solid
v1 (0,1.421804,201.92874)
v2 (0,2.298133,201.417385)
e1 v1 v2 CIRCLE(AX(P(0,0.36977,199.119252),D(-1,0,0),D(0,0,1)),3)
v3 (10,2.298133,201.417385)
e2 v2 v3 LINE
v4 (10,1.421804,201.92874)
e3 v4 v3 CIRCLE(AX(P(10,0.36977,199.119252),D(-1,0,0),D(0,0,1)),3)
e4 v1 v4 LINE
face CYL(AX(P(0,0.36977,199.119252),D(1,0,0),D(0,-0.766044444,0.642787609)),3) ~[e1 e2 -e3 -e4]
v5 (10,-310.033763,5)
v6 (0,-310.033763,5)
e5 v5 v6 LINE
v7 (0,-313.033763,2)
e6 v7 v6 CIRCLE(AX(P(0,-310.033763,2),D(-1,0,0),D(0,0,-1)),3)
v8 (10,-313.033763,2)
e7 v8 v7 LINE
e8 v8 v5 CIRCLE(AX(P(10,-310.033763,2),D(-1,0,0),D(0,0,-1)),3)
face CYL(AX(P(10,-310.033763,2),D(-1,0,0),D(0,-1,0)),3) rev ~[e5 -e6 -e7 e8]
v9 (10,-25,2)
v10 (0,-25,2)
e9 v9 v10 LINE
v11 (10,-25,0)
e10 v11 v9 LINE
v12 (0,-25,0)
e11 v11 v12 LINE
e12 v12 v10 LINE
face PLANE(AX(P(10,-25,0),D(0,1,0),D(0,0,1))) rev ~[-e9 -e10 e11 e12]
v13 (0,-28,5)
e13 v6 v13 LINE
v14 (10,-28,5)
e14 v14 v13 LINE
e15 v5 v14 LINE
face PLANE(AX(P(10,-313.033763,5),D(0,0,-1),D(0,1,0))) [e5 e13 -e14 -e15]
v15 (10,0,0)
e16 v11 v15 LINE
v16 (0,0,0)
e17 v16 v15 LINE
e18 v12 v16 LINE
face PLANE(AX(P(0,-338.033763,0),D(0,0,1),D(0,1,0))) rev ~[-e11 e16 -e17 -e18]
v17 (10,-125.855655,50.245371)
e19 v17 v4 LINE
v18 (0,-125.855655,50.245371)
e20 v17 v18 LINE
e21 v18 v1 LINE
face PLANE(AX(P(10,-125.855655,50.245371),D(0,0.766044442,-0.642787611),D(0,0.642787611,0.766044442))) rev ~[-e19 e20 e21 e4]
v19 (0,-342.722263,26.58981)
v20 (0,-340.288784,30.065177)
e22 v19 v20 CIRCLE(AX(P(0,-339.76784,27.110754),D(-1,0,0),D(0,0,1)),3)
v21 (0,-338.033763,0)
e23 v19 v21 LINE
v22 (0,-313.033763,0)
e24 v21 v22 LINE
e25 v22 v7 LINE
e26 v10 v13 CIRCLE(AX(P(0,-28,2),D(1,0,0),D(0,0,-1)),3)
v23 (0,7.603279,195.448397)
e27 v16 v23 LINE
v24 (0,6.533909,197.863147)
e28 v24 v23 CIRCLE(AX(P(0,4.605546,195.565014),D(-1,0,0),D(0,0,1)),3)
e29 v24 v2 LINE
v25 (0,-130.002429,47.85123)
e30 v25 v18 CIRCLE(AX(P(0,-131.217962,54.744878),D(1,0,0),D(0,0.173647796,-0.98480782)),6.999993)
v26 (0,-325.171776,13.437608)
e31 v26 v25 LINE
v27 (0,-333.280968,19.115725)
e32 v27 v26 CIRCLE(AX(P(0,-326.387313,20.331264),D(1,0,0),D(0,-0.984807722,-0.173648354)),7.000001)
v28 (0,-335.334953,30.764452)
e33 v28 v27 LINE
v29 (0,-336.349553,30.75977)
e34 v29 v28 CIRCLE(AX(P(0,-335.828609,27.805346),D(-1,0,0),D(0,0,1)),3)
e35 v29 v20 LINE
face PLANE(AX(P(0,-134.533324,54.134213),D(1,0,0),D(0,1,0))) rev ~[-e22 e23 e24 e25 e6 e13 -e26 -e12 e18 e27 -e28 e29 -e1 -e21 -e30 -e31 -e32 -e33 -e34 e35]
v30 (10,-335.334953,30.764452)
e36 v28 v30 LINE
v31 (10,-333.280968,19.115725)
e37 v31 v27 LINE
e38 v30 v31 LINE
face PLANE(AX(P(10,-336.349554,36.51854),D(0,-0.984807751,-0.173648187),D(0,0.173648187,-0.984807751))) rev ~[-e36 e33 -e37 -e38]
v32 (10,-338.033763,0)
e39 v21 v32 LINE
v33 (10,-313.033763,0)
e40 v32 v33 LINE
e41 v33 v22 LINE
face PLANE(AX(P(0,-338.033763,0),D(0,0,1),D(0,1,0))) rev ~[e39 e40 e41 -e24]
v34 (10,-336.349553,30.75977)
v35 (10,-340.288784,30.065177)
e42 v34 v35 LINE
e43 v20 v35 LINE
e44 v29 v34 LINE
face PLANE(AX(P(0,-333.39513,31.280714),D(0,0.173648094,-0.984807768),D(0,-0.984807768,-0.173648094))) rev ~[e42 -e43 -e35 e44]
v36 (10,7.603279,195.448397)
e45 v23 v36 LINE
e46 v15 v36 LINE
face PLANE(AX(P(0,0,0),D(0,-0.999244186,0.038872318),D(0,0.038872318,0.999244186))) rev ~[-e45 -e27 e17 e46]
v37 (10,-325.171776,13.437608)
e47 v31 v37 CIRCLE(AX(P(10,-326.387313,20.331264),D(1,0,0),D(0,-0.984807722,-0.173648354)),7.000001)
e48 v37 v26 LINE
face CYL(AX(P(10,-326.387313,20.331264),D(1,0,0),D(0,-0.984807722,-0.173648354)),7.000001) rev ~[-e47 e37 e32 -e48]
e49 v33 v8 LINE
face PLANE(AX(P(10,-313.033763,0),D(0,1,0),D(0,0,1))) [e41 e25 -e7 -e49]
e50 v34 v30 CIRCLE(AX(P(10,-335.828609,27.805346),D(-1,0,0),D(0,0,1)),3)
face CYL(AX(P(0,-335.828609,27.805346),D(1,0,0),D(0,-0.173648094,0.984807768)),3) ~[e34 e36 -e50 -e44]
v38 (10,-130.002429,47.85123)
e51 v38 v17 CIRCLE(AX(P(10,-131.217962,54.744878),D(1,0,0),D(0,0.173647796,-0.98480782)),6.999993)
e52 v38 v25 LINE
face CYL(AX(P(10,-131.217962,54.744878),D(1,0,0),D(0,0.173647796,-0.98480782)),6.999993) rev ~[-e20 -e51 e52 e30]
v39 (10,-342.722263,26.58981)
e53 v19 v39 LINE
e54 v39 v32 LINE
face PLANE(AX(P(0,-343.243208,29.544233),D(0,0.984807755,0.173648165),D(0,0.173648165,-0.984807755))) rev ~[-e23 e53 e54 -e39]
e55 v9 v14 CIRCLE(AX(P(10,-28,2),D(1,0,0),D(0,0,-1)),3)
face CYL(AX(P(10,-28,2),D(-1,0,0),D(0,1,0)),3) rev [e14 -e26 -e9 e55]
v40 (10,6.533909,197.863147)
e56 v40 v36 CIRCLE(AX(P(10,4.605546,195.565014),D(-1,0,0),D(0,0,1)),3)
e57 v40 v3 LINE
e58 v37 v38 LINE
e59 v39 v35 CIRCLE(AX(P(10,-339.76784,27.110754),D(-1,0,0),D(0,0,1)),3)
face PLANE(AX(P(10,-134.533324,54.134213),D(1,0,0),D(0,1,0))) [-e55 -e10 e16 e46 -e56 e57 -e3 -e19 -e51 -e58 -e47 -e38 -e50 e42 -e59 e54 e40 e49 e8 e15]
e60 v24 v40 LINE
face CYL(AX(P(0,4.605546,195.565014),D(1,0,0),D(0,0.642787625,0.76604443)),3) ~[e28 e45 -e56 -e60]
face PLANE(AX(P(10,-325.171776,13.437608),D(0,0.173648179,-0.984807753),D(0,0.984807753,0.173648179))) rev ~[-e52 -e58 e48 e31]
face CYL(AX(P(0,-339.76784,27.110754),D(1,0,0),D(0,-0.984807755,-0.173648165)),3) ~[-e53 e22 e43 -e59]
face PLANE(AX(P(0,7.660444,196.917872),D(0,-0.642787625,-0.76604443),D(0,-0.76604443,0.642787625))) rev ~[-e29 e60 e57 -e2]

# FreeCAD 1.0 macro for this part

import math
import FreeCAD as App
import Part
import Sketcher
from FreeCAD import Vector
Q = App.Units.Quantity


def edges_at(feature, points):
    """Names of the edges that pass closest to the given points."""
    edges = feature.Shape.Edges
    near = lambda p: min(range(len(edges)), key=lambda i: edges[i].distToShape(Part.Vertex(*p))[0])
    return sorted({f"Edge{near(p) + 1}" for p in points})

doc = App.newDocument("Part")
body = doc.addObject("PartDesign::Body", "Body")

sketch1 = body.newObject("Sketcher::SketchObject", "Sketch")
sketch1.AttachmentSupport = (doc.getObject("YZ_Plane"), [""])
sketch1.MapMode = "FlatFace"
sketch1.addGeometry([
    Part.LineSegment(Vector(-343, 30, 0), Vector(-338, 0, 0)),
    Part.LineSegment(Vector(-338, 0, 0), Vector(0, 0, 0)),
    Part.LineSegment(Vector(0, 0, 0), Vector(8, 197, 0)),
    Part.LineSegment(Vector(8, 197, 0), Vector(0, 203, 0)),
    Part.LineSegment(Vector(0, 203, 0), Vector(-129, 50, 0)),
    Part.LineSegment(Vector(-129, 50, 0), Vector(-330, 15, 0)),
    Part.LineSegment(Vector(-330, 15, 0), Vector(-333, 31, 0)),
    Part.LineSegment(Vector(-333, 31, 0), Vector(-343, 30, 0)),
], False)
sketch1.addConstraint([
    Sketcher.Constraint("Coincident", 0, 2, 1, 1),
    Sketcher.Constraint("Coincident", 1, 2, 2, 1),
    Sketcher.Constraint("Coincident", 2, 2, 3, 1),
    Sketcher.Constraint("Coincident", 3, 2, 4, 1),
    Sketcher.Constraint("Coincident", 4, 2, 5, 1),
    Sketcher.Constraint("Coincident", 5, 2, 6, 1),
    Sketcher.Constraint("Coincident", 6, 2, 7, 1),
    Sketcher.Constraint("Coincident", 7, 2, 0, 1),
    Sketcher.Constraint("Horizontal", 1),
    Sketcher.Constraint("Coincident", 1, 2, -1, 1),
    Sketcher.Constraint("PointOnObject", 3, 2, -2),
    Sketcher.Constraint("Perpendicular", 3, 4),
    Sketcher.Constraint("Perpendicular", 0, 5),
    Sketcher.Constraint("Perpendicular", 5, 6),
    Sketcher.Constraint("Perpendicular", 6, 7),
    Sketcher.Constraint("Equal", 3, 7),
    Sketcher.Constraint("Angle", 0, Q("-80.000001 deg")),
    Sketcher.Constraint("Angle", 3, Q("139.999999 deg")),
    Sketcher.Constraint("Distance", 0, 30.0),
    Sketcher.Constraint("Distance", 3, 10.0),
    Sketcher.Constraint("Distance", 4, 200.0),
    Sketcher.Constraint("Distance", 5, 205.0),
    Sketcher.Constraint("Distance", 6, 16.999999),
])
pad1 = body.newObject("PartDesign::Pad", "Pad")
pad1.Profile = sketch1
pad1.Length = 10

sketch2 = body.newObject("Sketcher::SketchObject", "Sketch001")
sketch2.AttachmentSupport = (doc.getObject("YZ_Plane"), [""])
sketch2.MapMode = "FlatFace"
sketch2.AttachmentOffset = App.Placement(Vector(0, 0, 10), App.Rotation())
sketch2.addGeometry([
    Part.LineSegment(Vector(-313, 5, 0), Vector(-313, 0, 0)),
    Part.LineSegment(Vector(-313, 0, 0), Vector(-25, 0, 0)),
    Part.LineSegment(Vector(-25, 0, 0), Vector(-25, 5, 0)),
    Part.LineSegment(Vector(-25, 5, 0), Vector(-313, 5, 0)),
], False)
sketch2.addConstraint([
    Sketcher.Constraint("Coincident", 0, 2, 1, 1),
    Sketcher.Constraint("Coincident", 1, 2, 2, 1),
    Sketcher.Constraint("Coincident", 2, 2, 3, 1),
    Sketcher.Constraint("Coincident", 3, 2, 0, 1),
    Sketcher.Constraint("Vertical", 0),
    Sketcher.Constraint("Horizontal", 1),
    Sketcher.Constraint("Vertical", 2),
    Sketcher.Constraint("Horizontal", 3),
    Sketcher.Constraint("PointOnObject", 0, 2, -1),
    Sketcher.Constraint("DistanceY", 0, 2, 0, 1, 5.0),
    Sketcher.Constraint("DistanceX", 1, 2, -1, 1, 25.0),
    Sketcher.Constraint("DistanceX", 1, 1, 1, 2, 288.033763),
])
pocket1 = body.newObject("PartDesign::Pocket", "Pocket")
pocket1.Profile = sketch2
pocket1.Type = "ThroughAll"
doc.recompute()

fillet = body.newObject("PartDesign::Fillet", "Fillet")
fillet.Base = (pocket1, edges_at(pocket1, [
    (5, 0, 203.346),
    (5, 7.66, 196.918),
    (5, -25, 5),
    (5, -313.034, 5),
    (5, -333.395, 31.281),
    (5, -343.243, 29.544),
]))
fillet.Radius = 3
doc.recompute()

fillet2 = body.newObject("PartDesign::Fillet", "Fillet001")
fillet2.Base = (fillet, edges_at(fillet, [(5, -330.443, 14.539), (5, -128.558, 50.137)]))
fillet2.Radius = 5

sketch3 = body.newObject("Sketcher::SketchObject", "Sketch002")
sketch3.AttachmentSupport = (doc.getObject("YZ_Plane"), [""])
sketch3.MapMode = "FlatFace"
sketch3.AttachmentOffset = App.Placement(Vector(0, 0, 10), App.Rotation())
sketch3.addGeometry([
    Part.LineSegment(Vector(-336.3, 36.5, 0), Vector(-333.3, 19.1, 0)),
    Part.ArcOfCircle(Part.Circle(Vector(-326.4, 20.3, 0), Vector(0, 0, 1), 7), math.radians(-170), math.radians(-80)),
    Part.LineSegment(Vector(-325.2, 13.4, 0), Vector(-130, 47.9, 0)),
    Part.ArcOfCircle(Part.Circle(Vector(-131.2, 54.7, 0), Vector(0, 0, 1), 7), math.radians(-80), math.radians(-40)),
    Part.LineSegment(Vector(-125.9, 50.2, 0), Vector(5.1, 206.3, 0)),
    Part.LineSegment(Vector(5.1, 206.3, 0), Vector(-336.3, 36.5, 0)),
], False)
sketch3.addConstraint([
    Sketcher.Constraint("Tangent", 0, 2, 1, 1),
    Sketcher.Constraint("Tangent", 1, 2, 2, 1),
    Sketcher.Constraint("Tangent", 2, 2, 3, 1),
    Sketcher.Constraint("Tangent", 3, 2, 4, 1),
    Sketcher.Constraint("Coincident", 4, 2, 5, 1),
    Sketcher.Constraint("Coincident", 5, 2, 0, 1),
    Sketcher.Constraint("Perpendicular", 0, 2),
    Sketcher.Constraint("Radius", 1, 7.000001),
    Sketcher.Constraint("Angle", 0, Q("-79.999999 deg")),
    Sketcher.Constraint("Angle", 4, Q("50 deg")),
    Sketcher.Constraint("Radius", 3, 6.999993),
    Sketcher.Constraint("Distance", 0, 17.671282),
    Sketcher.Constraint("Distance", 2, 198.180149),
    Sketcher.Constraint("Distance", 4, 203.779659),
    Sketcher.Constraint("DistanceX", 2, 2, -1, 1, 130.002429),
    Sketcher.Constraint("DistanceY", -1, 1, 2, 2, 47.85123),
])
pocket2 = body.newObject("PartDesign::Pocket", "Pocket001")
pocket2.Profile = sketch3
pocket2.Length = 25

doc.recompute()
